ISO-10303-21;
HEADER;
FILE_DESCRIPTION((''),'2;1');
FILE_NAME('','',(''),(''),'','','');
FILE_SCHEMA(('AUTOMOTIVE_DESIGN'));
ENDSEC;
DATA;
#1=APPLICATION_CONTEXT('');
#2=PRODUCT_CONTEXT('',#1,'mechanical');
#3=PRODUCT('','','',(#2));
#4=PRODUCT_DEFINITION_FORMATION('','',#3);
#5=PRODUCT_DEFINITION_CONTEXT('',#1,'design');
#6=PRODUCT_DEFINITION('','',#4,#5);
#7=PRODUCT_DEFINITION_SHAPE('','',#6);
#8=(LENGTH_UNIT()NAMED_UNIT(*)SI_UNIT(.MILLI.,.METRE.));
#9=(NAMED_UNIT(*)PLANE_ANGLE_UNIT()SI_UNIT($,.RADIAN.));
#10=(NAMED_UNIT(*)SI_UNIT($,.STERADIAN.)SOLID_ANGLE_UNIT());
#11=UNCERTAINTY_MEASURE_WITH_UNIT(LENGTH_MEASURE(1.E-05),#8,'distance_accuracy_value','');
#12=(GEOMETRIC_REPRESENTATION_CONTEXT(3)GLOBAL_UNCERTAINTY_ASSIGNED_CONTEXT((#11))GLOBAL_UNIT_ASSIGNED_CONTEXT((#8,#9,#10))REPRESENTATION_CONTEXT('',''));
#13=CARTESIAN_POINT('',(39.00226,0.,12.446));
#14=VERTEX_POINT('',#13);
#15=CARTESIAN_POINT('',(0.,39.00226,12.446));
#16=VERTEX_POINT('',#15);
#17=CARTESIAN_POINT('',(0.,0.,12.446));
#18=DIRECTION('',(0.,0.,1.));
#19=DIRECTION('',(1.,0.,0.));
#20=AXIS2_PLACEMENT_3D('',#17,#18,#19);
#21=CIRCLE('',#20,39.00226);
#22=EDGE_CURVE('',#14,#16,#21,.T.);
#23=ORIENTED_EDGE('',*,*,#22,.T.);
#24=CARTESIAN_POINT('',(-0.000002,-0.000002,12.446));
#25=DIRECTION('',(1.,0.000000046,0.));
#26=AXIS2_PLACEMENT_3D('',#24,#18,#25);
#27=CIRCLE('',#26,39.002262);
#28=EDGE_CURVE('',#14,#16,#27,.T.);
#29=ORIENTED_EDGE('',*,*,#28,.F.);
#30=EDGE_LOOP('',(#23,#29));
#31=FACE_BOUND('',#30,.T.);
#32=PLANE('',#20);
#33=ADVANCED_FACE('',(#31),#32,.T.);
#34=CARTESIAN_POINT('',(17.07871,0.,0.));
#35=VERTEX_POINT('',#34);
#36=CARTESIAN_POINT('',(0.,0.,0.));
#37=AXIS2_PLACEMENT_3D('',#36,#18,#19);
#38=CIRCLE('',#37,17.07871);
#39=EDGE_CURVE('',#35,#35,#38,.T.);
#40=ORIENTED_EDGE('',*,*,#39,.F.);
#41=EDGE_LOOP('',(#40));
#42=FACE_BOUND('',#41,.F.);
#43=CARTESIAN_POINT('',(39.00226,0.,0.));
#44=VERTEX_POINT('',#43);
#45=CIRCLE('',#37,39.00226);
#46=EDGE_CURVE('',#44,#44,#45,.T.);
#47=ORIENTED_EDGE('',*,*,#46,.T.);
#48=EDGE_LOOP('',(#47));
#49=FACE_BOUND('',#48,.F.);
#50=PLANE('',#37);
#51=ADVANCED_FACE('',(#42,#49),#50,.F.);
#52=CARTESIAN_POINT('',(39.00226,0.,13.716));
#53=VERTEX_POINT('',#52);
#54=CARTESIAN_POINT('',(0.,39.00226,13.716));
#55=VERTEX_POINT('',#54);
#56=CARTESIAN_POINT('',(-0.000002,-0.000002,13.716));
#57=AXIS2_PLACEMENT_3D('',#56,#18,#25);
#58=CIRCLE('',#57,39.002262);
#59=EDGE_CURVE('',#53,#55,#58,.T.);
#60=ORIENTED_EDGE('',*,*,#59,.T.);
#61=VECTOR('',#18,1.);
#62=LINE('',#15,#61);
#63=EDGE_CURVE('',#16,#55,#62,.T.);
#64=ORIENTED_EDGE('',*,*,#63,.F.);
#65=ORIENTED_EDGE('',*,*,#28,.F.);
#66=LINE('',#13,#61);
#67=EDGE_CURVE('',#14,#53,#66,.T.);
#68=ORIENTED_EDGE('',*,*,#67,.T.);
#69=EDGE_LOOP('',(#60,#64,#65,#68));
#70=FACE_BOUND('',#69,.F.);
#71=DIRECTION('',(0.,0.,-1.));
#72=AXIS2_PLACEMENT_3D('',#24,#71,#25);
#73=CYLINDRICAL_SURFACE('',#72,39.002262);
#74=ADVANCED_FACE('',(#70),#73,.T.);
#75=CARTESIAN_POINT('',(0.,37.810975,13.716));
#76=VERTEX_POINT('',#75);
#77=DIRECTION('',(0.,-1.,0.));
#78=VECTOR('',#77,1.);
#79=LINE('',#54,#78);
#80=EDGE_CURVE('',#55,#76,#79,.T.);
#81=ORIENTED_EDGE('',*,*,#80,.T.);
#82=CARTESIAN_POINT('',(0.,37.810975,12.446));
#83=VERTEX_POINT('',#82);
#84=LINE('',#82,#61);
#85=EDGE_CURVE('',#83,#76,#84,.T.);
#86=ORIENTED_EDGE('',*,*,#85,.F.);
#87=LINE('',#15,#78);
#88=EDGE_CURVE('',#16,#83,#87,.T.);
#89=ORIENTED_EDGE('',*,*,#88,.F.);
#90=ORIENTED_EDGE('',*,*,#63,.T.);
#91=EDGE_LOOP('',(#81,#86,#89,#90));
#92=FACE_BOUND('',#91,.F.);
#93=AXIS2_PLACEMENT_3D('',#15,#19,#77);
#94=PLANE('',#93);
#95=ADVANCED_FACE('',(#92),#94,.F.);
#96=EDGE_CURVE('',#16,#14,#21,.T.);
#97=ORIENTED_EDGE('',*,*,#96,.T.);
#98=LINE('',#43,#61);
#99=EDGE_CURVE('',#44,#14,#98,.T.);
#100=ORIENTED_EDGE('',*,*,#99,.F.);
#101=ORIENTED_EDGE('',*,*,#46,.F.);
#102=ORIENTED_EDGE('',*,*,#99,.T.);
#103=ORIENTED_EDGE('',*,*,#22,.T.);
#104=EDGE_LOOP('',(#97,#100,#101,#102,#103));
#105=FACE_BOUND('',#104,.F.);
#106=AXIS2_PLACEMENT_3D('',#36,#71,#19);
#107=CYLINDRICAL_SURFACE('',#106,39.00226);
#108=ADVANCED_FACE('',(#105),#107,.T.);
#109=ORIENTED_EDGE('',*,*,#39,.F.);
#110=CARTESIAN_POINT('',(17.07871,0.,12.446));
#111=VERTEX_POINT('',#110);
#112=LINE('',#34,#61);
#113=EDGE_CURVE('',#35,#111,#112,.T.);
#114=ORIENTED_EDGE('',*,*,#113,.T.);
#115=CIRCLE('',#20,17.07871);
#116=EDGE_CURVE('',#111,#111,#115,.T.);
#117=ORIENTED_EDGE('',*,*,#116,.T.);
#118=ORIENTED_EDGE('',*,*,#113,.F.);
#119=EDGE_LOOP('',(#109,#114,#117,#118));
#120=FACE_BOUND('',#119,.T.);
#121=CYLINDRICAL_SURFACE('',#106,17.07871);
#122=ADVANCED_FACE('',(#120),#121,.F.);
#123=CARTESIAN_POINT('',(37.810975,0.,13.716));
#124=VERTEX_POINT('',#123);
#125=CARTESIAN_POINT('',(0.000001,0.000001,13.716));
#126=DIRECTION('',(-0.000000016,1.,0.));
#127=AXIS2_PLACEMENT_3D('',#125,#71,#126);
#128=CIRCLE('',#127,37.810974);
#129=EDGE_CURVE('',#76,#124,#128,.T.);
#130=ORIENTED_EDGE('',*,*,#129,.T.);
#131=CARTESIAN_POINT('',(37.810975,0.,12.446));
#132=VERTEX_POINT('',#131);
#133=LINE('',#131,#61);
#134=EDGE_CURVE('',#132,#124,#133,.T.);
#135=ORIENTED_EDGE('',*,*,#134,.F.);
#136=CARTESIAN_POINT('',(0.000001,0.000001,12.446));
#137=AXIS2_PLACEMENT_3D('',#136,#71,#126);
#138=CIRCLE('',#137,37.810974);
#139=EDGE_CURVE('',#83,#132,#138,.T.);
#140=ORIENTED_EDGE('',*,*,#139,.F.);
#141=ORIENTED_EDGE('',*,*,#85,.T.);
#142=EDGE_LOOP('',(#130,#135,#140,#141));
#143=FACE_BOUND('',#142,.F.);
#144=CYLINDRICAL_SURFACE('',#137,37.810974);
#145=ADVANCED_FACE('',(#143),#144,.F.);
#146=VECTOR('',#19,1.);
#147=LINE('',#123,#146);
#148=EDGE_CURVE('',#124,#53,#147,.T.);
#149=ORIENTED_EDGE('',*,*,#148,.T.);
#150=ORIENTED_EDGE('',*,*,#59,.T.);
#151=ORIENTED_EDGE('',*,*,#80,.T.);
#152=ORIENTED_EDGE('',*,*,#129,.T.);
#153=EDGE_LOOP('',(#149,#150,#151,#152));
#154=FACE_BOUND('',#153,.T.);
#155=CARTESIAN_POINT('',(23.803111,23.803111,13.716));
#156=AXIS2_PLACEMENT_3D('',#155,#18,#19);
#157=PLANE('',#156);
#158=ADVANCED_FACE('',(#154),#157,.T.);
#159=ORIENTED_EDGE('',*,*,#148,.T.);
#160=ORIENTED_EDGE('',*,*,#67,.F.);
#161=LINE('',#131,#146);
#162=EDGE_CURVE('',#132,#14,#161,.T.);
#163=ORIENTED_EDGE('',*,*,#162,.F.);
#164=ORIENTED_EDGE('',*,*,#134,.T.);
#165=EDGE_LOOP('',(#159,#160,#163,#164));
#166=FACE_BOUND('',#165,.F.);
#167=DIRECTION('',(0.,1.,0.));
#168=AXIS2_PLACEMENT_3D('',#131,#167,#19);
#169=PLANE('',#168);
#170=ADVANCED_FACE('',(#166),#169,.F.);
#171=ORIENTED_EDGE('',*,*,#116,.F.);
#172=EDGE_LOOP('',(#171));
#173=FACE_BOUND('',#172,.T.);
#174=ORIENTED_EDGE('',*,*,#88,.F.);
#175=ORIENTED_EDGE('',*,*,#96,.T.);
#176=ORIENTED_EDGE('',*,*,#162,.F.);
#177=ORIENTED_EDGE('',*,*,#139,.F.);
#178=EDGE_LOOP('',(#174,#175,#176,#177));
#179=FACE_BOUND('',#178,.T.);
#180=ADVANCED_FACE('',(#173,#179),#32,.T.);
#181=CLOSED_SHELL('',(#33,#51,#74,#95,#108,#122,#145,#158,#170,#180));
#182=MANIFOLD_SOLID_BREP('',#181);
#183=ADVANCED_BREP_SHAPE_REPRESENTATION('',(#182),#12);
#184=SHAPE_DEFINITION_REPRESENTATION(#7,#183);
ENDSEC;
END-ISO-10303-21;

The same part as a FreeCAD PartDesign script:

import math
import FreeCAD as App
import Part
import Sketcher
Q = App.Units.Quantity

doc = App.newDocument("Part")
body = doc.addObject("PartDesign::Body", "Body")

sketch1 = body.newObject("Sketcher::SketchObject", "Sketch")
sketch1.AttachmentSupport = (doc.getObject("XY_Plane"), [""])
sketch1.MapMode = "FlatFace"
sketch1.addGeometry(Part.Circle(App.Vector(0, 0, 0), App.Vector(0, 0, 1), 39), False)
sketch1.addGeometry(Part.Circle(App.Vector(0, 0, 0), App.Vector(0, 0, 1), 17), False)
sketch1.addConstraint(Sketcher.Constraint("Coincident", 0, 3, -1, 1))
sketch1.addConstraint(Sketcher.Constraint("Coincident", 1, 3, -1, 1))
sketch1.addConstraint(Sketcher.Constraint("Diameter", 0, 78.00452))
sketch1.addConstraint(Sketcher.Constraint("Diameter", 1, 34.15742))
pad1 = body.newObject("PartDesign::Pad", "Pad")
pad1.Profile = sketch1
pad1.Length = Q("0.49 in")

sketch2 = body.newObject("Sketcher::SketchObject", "Sketch001")
sketch2.AttachmentSupport = (doc.getObject("XY_Plane"), [""])
sketch2.MapMode = "FlatFace"
sketch2.AttachmentOffset = App.Placement(App.Vector(0, 0, 0.49 * 25.4), App.Rotation())
sketch2.addGeometry(Part.ArcOfCircle(Part.Circle(App.Vector(0, 0, 0), App.Vector(0, 0, 1), 37.8), math.radians(0), math.radians(90)), False)
sketch2.addGeometry(Part.LineSegment(App.Vector(37.8, 0, 0), App.Vector(39, 0, 0)), False)
sketch2.addGeometry(Part.ArcOfCircle(Part.Circle(App.Vector(0, 0, 0), App.Vector(0, 0, 1), 39), math.radians(0), math.radians(90)), False)
sketch2.addGeometry(Part.LineSegment(App.Vector(0, 39, 0), App.Vector(0, 37.8, 0)), False)
sketch2.addConstraint(Sketcher.Constraint("Coincident", 0, 1, 1, 1))
sketch2.addConstraint(Sketcher.Constraint("Coincident", 1, 2, 2, 1))
sketch2.addConstraint(Sketcher.Constraint("Coincident", 2, 2, 3, 1))
sketch2.addConstraint(Sketcher.Constraint("Coincident", 3, 2, 0, 2))
sketch2.addConstraint(Sketcher.Constraint("Horizontal", 1))
sketch2.addConstraint(Sketcher.Constraint("Vertical", 3))
sketch2.addConstraint(Sketcher.Constraint("Coincident", 0, 3, -1, 1))
sketch2.addConstraint(Sketcher.Constraint("Coincident", 2, 3, -1, 1))
sketch2.addConstraint(Sketcher.Constraint("PointOnObject", 0, 1, -1))
sketch2.addConstraint(Sketcher.Constraint("PointOnObject", 2, 2, -2))
sketch2.addConstraint(Sketcher.Constraint("Radius", 2, 39.002262))
sketch2.addConstraint(Sketcher.Constraint("Radius", 0, 37.810974))
pad2 = body.newObject("PartDesign::Pad", "Pad001")
pad2.Profile = sketch2
pad2.Length = Q("0.05 in")

doc.recompute()
